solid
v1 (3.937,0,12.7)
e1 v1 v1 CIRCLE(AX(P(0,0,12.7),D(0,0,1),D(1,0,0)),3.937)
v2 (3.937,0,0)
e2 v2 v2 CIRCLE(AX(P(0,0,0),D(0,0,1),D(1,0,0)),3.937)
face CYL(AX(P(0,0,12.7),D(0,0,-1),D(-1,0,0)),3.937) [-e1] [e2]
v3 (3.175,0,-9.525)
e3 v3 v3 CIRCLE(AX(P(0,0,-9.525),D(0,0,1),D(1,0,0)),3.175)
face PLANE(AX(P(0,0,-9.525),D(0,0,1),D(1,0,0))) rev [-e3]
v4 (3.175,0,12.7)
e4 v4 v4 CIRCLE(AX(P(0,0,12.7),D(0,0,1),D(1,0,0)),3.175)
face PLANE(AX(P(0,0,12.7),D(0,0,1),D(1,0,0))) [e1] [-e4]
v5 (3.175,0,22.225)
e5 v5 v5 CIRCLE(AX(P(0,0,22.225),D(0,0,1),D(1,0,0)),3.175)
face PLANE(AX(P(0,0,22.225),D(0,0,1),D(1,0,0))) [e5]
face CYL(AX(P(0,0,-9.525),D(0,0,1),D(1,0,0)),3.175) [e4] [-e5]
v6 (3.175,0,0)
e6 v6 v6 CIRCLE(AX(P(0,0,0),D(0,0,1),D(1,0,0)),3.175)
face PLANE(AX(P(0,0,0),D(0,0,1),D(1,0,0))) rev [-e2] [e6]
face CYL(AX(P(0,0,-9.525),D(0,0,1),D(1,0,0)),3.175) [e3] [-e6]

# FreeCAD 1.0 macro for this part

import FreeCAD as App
import Part
import Sketcher

V = App.Vector
Q = App.Units.Quantity

doc = App.newDocument("Part")
body = doc.addObject("PartDesign::Body", "Body")

# Sketch on XY plane
sketch1 = body.newObject("Sketcher::SketchObject", "Sketch")
sketch1.AttachmentSupport = (doc.getObject("XY_Plane"), [""])
sketch1.MapMode = "FlatFace"
sketch1.addGeometry(Part.Circle(V(0, 0, 0), V(0, 0, 1), 3.9), False)
sketch1.addConstraint([
    Sketcher.Constraint("Coincident", 0, 3, -1, 1),
    Sketcher.Constraint("Diameter", 0, Q("0.31 in")),
])
pad1 = body.newObject("PartDesign::Pad", "Pad")
pad1.Profile = sketch1
pad1.Length = Q("0.5 in")

# Sketch on XY plane
sketch2 = body.newObject("Sketcher::SketchObject", "Sketch001")
sketch2.AttachmentSupport = (doc.getObject("XY_Plane"), [""])
sketch2.MapMode = "FlatFace"
sketch2.AttachmentOffset = App.Placement(V(0, 0, 0.5 * 25.4), App.Rotation())
sketch2.addGeometry(Part.Circle(V(0, 0, 0), V(0, 0, 1), 3.2), False)
sketch2.addConstraint([
    Sketcher.Constraint("Coincident", 0, 3, -1, 1),
    Sketcher.Constraint("Diameter", 0, Q("0.25 in")),
])
pad2 = body.newObject("PartDesign::Pad", "Pad001")
pad2.Profile = sketch2
pad2.Type = "TwoLengths"
pad2.Length = Q("0.375 in")
pad2.Length2 = Q("0.875 in")

doc.recompute()
